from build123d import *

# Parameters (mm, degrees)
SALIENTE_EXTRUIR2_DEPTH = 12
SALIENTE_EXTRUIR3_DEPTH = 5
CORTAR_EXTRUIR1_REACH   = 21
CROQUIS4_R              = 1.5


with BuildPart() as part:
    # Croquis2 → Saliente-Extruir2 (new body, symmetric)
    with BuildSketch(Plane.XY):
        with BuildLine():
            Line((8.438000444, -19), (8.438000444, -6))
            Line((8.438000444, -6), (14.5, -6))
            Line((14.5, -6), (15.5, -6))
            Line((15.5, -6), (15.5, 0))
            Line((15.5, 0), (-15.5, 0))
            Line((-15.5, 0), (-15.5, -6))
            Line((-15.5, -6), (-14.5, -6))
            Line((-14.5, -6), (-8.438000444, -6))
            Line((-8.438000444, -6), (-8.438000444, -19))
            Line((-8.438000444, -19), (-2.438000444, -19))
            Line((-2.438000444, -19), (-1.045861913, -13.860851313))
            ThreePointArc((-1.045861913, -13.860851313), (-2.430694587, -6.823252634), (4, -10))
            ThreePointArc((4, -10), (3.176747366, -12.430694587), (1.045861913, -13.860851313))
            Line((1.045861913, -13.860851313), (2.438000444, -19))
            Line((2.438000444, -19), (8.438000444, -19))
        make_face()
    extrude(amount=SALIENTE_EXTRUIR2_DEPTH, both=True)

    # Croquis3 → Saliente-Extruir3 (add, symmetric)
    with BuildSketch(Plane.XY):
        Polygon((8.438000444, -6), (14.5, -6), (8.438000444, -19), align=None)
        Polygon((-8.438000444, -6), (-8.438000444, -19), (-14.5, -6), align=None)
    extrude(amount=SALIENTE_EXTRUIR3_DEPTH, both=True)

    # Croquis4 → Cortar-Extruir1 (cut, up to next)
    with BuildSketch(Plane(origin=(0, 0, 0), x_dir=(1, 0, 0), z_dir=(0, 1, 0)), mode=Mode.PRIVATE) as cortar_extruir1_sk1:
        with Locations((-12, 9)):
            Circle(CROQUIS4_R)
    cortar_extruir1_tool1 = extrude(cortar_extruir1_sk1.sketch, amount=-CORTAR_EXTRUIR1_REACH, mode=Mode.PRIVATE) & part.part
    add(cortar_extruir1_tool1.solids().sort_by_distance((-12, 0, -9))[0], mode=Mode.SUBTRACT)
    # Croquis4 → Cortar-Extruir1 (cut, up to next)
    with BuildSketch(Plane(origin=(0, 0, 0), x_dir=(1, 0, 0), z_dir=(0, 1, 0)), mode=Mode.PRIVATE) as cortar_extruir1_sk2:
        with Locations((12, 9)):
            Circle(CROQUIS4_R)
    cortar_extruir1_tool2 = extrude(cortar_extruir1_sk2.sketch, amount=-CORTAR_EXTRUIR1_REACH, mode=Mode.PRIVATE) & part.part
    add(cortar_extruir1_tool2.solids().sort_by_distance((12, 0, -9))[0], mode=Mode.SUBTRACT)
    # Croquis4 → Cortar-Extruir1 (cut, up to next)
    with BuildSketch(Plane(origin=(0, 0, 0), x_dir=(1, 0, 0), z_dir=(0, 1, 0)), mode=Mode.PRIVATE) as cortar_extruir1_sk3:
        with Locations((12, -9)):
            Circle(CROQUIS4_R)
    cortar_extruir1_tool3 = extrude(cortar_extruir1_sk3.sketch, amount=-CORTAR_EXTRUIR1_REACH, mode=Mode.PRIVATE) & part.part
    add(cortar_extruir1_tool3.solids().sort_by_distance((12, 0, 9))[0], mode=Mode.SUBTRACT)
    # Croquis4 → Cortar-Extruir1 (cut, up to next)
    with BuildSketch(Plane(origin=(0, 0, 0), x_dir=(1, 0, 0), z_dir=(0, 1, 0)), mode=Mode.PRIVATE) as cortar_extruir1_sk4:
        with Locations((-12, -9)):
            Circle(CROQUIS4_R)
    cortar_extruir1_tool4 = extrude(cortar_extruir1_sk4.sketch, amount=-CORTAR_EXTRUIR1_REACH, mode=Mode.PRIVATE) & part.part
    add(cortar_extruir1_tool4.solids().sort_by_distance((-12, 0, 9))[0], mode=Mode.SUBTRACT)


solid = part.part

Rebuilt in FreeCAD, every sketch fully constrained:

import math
import FreeCAD as App
import Part
import Sketcher
Q = App.Units.Quantity

doc = App.newDocument("Part")
body = doc.addObject("PartDesign::Body", "Body")

# Sketch on XY plane
sketch1 = doc.addObject("Sketcher::SketchObject", "Sketch")
body.addObject(sketch1)
sketch1.AttachmentSupport = (doc.XY_Plane, [""])
sketch1.MapMode = "FlatFace"
sketch1.addGeometry(Part.LineSegment(App.Vector(8.438, -19, 0), App.Vector(8.438, -6, 0)), False)
sketch1.addGeometry(Part.LineSegment(App.Vector(8.438, -6, 0), App.Vector(15.5, -6, 0)), False)
sketch1.addGeometry(Part.LineSegment(App.Vector(15.5, -6, 0), App.Vector(15.5, 0, 0)), False)
sketch1.addGeometry(Part.LineSegment(App.Vector(15.5, 0, 0), App.Vector(-15.5, 0, 0)), False)
sketch1.addGeometry(Part.LineSegment(App.Vector(-15.5, 0, 0), App.Vector(-15.5, -6, 0)), False)
sketch1.addGeometry(Part.LineSegment(App.Vector(-15.5, -6, 0), App.Vector(-8.438, -6, 0)), False)
sketch1.addGeometry(Part.LineSegment(App.Vector(-8.438, -6, 0), App.Vector(-8.438, -19, 0)), False)
sketch1.addGeometry(Part.LineSegment(App.Vector(-8.438, -19, 0), App.Vector(-2.438, -19, 0)), False)
sketch1.addGeometry(Part.LineSegment(App.Vector(-2.438, -19, 0), App.Vector(-1.045862, -13.860851, 0)), False)
sketch1.addGeometry(Part.ArcOfCircle(Part.Circle(App.Vector(0, -10, 0), App.Vector(0, 0, 1), 4), math.radians(0), math.radians(254.842964)), False)
sketch1.addGeometry(Part.ArcOfCircle(Part.Circle(App.Vector(0, -10, 0), App.Vector(0, 0, 1), 4), math.radians(-74.842964), math.radians(0)), False)
sketch1.addGeometry(Part.LineSegment(App.Vector(1.045862, -13.860851, 0), App.Vector(2.438, -19, 0)), False)
sketch1.addGeometry(Part.LineSegment(App.Vector(2.438, -19, 0), App.Vector(8.438, -19, 0)), False)
sketch1.addConstraint(Sketcher.Constraint("Coincident", 0, 2, 1, 1))
sketch1.addConstraint(Sketcher.Constraint("Coincident", 1, 2, 2, 1))
sketch1.addConstraint(Sketcher.Constraint("Coincident", 2, 2, 3, 1))
sketch1.addConstraint(Sketcher.Constraint("Coincident", 3, 2, 4, 1))
sketch1.addConstraint(Sketcher.Constraint("Coincident", 4, 2, 5, 1))
sketch1.addConstraint(Sketcher.Constraint("Coincident", 5, 2, 6, 1))
sketch1.addConstraint(Sketcher.Constraint("Coincident", 6, 2, 7, 1))
sketch1.addConstraint(Sketcher.Constraint("Coincident", 7, 2, 8, 1))
sketch1.addConstraint(Sketcher.Constraint("Coincident", 8, 2, 9, 2))
sketch1.addConstraint(Sketcher.Constraint("Tangent", 9, 1, 10, 2))
sketch1.addConstraint(Sketcher.Constraint("Coincident", 10, 1, 11, 1))
sketch1.addConstraint(Sketcher.Constraint("Coincident", 11, 2, 12, 1))
sketch1.addConstraint(Sketcher.Constraint("Coincident", 12, 2, 0, 1))
sketch1.addConstraint(Sketcher.Constraint("Vertical", 0))
sketch1.addConstraint(Sketcher.Constraint("Horizontal", 1))
sketch1.addConstraint(Sketcher.Constraint("Vertical", 2))
sketch1.addConstraint(Sketcher.Constraint("Horizontal", 3))
sketch1.addConstraint(Sketcher.Constraint("Vertical", 4))
sketch1.addConstraint(Sketcher.Constraint("Horizontal", 5))
sketch1.addConstraint(Sketcher.Constraint("Vertical", 6))
sketch1.addConstraint(Sketcher.Constraint("Horizontal", 7))
sketch1.addConstraint(Sketcher.Constraint("Horizontal", 12))
sketch1.addConstraint(Sketcher.Constraint("Equal", 9, 10))
sketch1.addConstraint(Sketcher.Constraint("Symmetric", 2, 2, 3, 2, -1, 1))
sketch1.addConstraint(Sketcher.Constraint("Symmetric", 0, 2, 5, 2, -2))
sketch1.addConstraint(Sketcher.Constraint("Symmetric", 8, 2, 10, 1, -2))
sketch1.addConstraint(Sketcher.Constraint("Symmetric", 7, 2, 11, 2, -2))
sketch1.addConstraint(Sketcher.Constraint("Horizontal", 10, 3, 9, 1))
sketch1.addConstraint(Sketcher.Constraint("Equal", 12, 2))
sketch1.addConstraint(Sketcher.Constraint("Radius", 9, 4.0))
sketch1.addConstraint(Sketcher.Constraint("DistanceX", 3, 2, 3, 1, 31.0))
sketch1.addConstraint(Sketcher.Constraint("DistanceX", 7, 1, 7, 2, 6.0))
sketch1.addConstraint(Sketcher.Constraint("DistanceY", 0, 1, 0, 2, 13.0))
sketch1.addConstraint(Sketcher.Constraint("DistanceY", 9, 3, -1, 1, 10.0))
sketch1.addConstraint(Sketcher.Constraint("DistanceX", 1, 1, 1, 2, 7.062))
sketch1.addConstraint(Sketcher.Constraint("DistanceX", 8, 2, -1, 1, 1.045862))
pad1 = doc.addObject("PartDesign::Pad", "Pad")
body.addObject(pad1)
pad1.Profile = sketch1
pad1.Length = 24
pad1.Midplane = True

# Sketch on XY plane
sketch2 = doc.addObject("Sketcher::SketchObject", "Sketch001")
body.addObject(sketch2)
sketch2.AttachmentSupport = (doc.XY_Plane, [""])
sketch2.MapMode = "FlatFace"
sketch2.addGeometry(Part.LineSegment(App.Vector(14.5, -6, 0), App.Vector(8.438, -6, 0)), False)
sketch2.addGeometry(Part.LineSegment(App.Vector(8.438, -6, 0), App.Vector(8.438, -19, 0)), False)
sketch2.addGeometry(Part.LineSegment(App.Vector(8.438, -19, 0), App.Vector(14.5, -6, 0)), False)
sketch2.addGeometry(Part.LineSegment(App.Vector(-8.438, -19, 0), App.Vector(-8.438, -6, 0)), False)
sketch2.addGeometry(Part.LineSegment(App.Vector(-8.438, -6, 0), App.Vector(-14.5, -6, 0)), False)
sketch2.addGeometry(Part.LineSegment(App.Vector(-14.5, -6, 0), App.Vector(-8.438, -19, 0)), False)
sketch2.addConstraint(Sketcher.Constraint("Coincident", 0, 2, 1, 1))
sketch2.addConstraint(Sketcher.Constraint("Coincident", 1, 2, 2, 1))
sketch2.addConstraint(Sketcher.Constraint("Coincident", 2, 2, 0, 1))
sketch2.addConstraint(Sketcher.Constraint("Coincident", 3, 2, 4, 1))
sketch2.addConstraint(Sketcher.Constraint("Coincident", 4, 2, 5, 1))
sketch2.addConstraint(Sketcher.Constraint("Coincident", 5, 2, 3, 1))
sketch2.addConstraint(Sketcher.Constraint("Horizontal", 0))
sketch2.addConstraint(Sketcher.Constraint("Vertical", 1))
sketch2.addConstraint(Sketcher.Constraint("Vertical", 3))
sketch2.addConstraint(Sketcher.Constraint("Horizontal", 4))
sketch2.addConstraint(Sketcher.Constraint("Symmetric", 0, 2, 3, 2, -2))
sketch2.addConstraint(Sketcher.Constraint("Horizontal", 1, 2, 5, 2))
sketch2.addConstraint(Sketcher.Constraint("Equal", 0, 4))
sketch2.addConstraint(Sketcher.Constraint("DistanceY", 1, 2, 1, 1, 13.0))
sketch2.addConstraint(Sketcher.Constraint("Angle", 2, Q("65 deg")))
sketch2.addConstraint(Sketcher.Constraint("DistanceY", 0, 2, -1, 1, 6.0))
sketch2.addConstraint(Sketcher.Constraint("DistanceX", 4, 2, 2, 2, 29.0))
pad2 = doc.addObject("PartDesign::Pad", "Pad001")
body.addObject(pad2)
pad2.Profile = sketch2
pad2.Length = 10
pad2.Midplane = True

# Sketch on XZ plane
sketch3 = doc.addObject("Sketcher::SketchObject", "Sketch002")
body.addObject(sketch3)
sketch3.AttachmentSupport = (doc.XZ_Plane, [""])
sketch3.MapMode = "FlatFace"
sketch3.addGeometry(Part.Circle(App.Vector(-12, -9, 0), App.Vector(0, 0, 1), 1.5), False)
sketch3.addConstraint(Sketcher.Constraint("Diameter", 0, 3.0))
sketch3.addConstraint(Sketcher.Constraint("DistanceX", 0, 3, -1, 1, 12.0))
sketch3.addConstraint(Sketcher.Constraint("DistanceY", 0, 3, -1, 1, 9.0))
pocket1 = doc.addObject("PartDesign::Pocket", "Pocket")
body.addObject(pocket1)
pocket1.Profile = sketch3
pocket1.Type = "UpToFirst"
pocket1.Reversed = True

# Sketch on XZ plane
sketch4 = doc.addObject("Sketcher::SketchObject", "Sketch003")
body.addObject(sketch4)
sketch4.AttachmentSupport = (doc.XZ_Plane, [""])
sketch4.MapMode = "FlatFace"
sketch4.addGeometry(Part.Circle(App.Vector(12, -9, 0), App.Vector(0, 0, 1), 1.5), False)
sketch4.addConstraint(Sketcher.Constraint("Diameter", 0, 3.0))
sketch4.addConstraint(Sketcher.Constraint("DistanceX", -1, 1, 0, 3, 12.0))
sketch4.addConstraint(Sketcher.Constraint("DistanceY", 0, 3, -1, 1, 9.0))
pocket2 = doc.addObject("PartDesign::Pocket", "Pocket001")
body.addObject(pocket2)
pocket2.Profile = sketch4
pocket2.Type = "UpToFirst"
pocket2.Reversed = True

# Sketch on XZ plane
sketch5 = doc.addObject("Sketcher::SketchObject", "Sketch004")
body.addObject(sketch5)
sketch5.AttachmentSupport = (doc.XZ_Plane, [""])
sketch5.MapMode = "FlatFace"
sketch5.addGeometry(Part.Circle(App.Vector(12, 9, 0), App.Vector(0, 0, 1), 1.5), False)
sketch5.addConstraint(Sketcher.Constraint("Diameter", 0, 3.0))
sketch5.addConstraint(Sketcher.Constraint("DistanceX", -1, 1, 0, 3, 12.0))
sketch5.addConstraint(Sketcher.Constraint("DistanceY", -1, 1, 0, 3, 9.0))
pocket3 = doc.addObject("PartDesign::Pocket", "Pocket002")
body.addObject(pocket3)
pocket3.Profile = sketch5
pocket3.Type = "UpToFirst"
pocket3.Reversed = True

# Sketch on XZ plane
sketch6 = doc.addObject("Sketcher::SketchObject", "Sketch005")
body.addObject(sketch6)
sketch6.AttachmentSupport = (doc.XZ_Plane, [""])
sketch6.MapMode = "FlatFace"
sketch6.addGeometry(Part.Circle(App.Vector(-12, 9, 0), App.Vector(0, 0, 1), 1.5), False)
sketch6.addConstraint(Sketcher.Constraint("Diameter", 0, 3.0))
sketch6.addConstraint(Sketcher.Constraint("DistanceX", 0, 3, -1, 1, 12.0))
sketch6.addConstraint(Sketcher.Constraint("DistanceY", -1, 1, 0, 3, 9.0))
pocket4 = doc.addObject("PartDesign::Pocket", "Pocket003")
body.addObject(pocket4)
pocket4.Profile = sketch6
pocket4.Type = "UpToFirst"
pocket4.Reversed = True

doc.recompute()
